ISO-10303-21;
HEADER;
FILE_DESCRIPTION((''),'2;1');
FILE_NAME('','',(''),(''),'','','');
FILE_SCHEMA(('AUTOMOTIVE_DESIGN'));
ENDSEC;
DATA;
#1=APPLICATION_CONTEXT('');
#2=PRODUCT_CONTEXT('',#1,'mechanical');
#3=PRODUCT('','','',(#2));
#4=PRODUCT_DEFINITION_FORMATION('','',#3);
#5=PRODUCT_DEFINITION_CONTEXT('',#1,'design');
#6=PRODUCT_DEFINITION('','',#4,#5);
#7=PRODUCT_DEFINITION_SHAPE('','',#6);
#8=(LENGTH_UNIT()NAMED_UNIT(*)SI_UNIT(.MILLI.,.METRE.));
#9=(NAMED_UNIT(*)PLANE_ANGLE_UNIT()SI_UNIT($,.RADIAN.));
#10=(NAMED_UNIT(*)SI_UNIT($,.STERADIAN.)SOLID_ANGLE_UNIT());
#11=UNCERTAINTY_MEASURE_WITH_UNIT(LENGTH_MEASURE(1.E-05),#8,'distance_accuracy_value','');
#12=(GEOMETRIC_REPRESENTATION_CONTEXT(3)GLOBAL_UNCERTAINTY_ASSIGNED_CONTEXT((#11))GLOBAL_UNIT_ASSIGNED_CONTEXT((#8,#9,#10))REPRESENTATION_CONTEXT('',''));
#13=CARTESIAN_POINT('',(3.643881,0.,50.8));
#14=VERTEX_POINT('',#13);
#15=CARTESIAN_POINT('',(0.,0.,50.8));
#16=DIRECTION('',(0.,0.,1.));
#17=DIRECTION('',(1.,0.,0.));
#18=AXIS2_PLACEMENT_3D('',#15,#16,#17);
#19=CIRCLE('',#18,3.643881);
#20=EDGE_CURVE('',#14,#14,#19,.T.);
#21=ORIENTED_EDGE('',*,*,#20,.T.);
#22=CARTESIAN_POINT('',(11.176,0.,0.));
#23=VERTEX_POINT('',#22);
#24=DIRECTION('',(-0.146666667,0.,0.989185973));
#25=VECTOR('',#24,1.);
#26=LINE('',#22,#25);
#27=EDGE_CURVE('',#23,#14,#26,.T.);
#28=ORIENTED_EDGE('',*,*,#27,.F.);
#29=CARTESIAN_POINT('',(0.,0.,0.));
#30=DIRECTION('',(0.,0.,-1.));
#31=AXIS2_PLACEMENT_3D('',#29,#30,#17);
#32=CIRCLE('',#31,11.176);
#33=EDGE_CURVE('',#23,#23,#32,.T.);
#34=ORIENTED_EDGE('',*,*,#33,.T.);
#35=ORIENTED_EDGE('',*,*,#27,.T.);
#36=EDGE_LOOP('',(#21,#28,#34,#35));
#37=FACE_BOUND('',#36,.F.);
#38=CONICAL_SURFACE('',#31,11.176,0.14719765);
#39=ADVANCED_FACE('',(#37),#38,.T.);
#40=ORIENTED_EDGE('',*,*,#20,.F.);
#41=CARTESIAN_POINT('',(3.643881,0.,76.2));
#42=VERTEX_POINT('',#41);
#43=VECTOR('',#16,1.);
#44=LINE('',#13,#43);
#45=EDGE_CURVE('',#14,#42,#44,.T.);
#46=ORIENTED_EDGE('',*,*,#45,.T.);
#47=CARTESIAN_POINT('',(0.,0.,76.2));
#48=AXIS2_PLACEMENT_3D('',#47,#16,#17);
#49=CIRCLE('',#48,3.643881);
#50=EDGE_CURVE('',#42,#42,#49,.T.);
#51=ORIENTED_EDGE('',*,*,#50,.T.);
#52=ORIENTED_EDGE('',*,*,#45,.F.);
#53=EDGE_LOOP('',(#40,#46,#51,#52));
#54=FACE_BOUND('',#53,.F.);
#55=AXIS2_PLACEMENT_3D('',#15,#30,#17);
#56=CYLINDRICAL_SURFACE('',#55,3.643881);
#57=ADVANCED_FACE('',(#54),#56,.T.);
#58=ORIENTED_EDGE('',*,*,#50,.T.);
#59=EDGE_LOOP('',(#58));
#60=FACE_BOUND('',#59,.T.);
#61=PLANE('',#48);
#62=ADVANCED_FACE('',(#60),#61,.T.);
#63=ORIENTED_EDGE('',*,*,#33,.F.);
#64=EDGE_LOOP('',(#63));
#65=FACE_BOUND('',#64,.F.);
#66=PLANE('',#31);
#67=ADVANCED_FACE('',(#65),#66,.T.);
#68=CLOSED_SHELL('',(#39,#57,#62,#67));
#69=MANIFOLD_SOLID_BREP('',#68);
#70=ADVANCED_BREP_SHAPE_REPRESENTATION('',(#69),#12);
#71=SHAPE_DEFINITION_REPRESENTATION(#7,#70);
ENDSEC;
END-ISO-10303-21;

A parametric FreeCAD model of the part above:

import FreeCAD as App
import Part
import Sketcher
from FreeCAD import Vector
Q = App.Units.Quantity


def add_polygon(sketch, points):
    """Adds a closed chain of lines whose ends are joined by coincident constraints."""
    first, n = sketch.GeometryCount, len(points)
    for a, b in zip(points, points[1:] + points[:1]):
        sketch.addGeometry(Part.LineSegment(App.Vector(*a, 0), App.Vector(*b, 0)), False)
    for i in range(n):
        sketch.addConstraint(Sketcher.Constraint("Coincident", first + i, 2, first + (i + 1) % n, 1))

doc = App.newDocument("Part")
body = doc.addObject("PartDesign::Body", "Body")

# Sketch on XZ plane
sketch1 = body.newObject("Sketcher::SketchObject", "Sketch")
sketch1.AttachmentSupport = (doc.getObject("XZ_Plane"), [""])
sketch1.MapMode = "FlatFace"
add_polygon(sketch1, [(0, 75), (0, 0), (11, 0)])  # lines 0-2
sketch1.addConstraint([
    Sketcher.Constraint("Vertical", 0),
    Sketcher.Constraint("Horizontal", 1),
    Sketcher.Constraint("Coincident", 0, 2, -1, 1),
    Sketcher.Constraint("Distance", 2, Q("3 in")),
    Sketcher.Constraint("DistanceX", 1, 1, 1, 2, Q("0.44 in")),
])
revolution = body.newObject("PartDesign::Revolution", "Revolution")
revolution.Profile = sketch1
revolution.ReferenceAxis = (sketch1, ["V_Axis"])
revolution.Angle = 360

# Sketch on YZ plane
sketch2 = body.newObject("Sketcher::SketchObject", "Sketch001")
sketch2.AttachmentSupport = (doc.getObject("YZ_Plane"), [""])
sketch2.MapMode = "FlatFace"
add_polygon(sketch2, [(-31, 76), (-31, 51), (25, 51), (25, 76)])  # lines 0-3
sketch2.addConstraint([
    Sketcher.Constraint("Vertical", 0),
    Sketcher.Constraint("Horizontal", 1),
    Sketcher.Constraint("Vertical", 2),
    Sketcher.Constraint("Horizontal", 3),
    Sketcher.Constraint("DistanceY", 0, 2, 0, 1, Q("1 in")),
    Sketcher.Constraint("DistanceY", -1, 1, 0, 2, Q("2 in")),
    Sketcher.Constraint("DistanceX", 1, 1, 1, 2, 56.300126),
    Sketcher.Constraint("DistanceX", 0, 2, -1, 1, 31.424319),
])
pocket1 = body.newObject("PartDesign::Pocket", "Pocket")
pocket1.Profile = sketch2
pocket1.Length = Q("0.8 in")
pocket1.Midplane = True

# Sketch on XY plane
sketch3 = body.newObject("Sketcher::SketchObject", "Sketch002")
sketch3.AttachmentSupport = (doc.getObject("XY_Plane"), [""])
sketch3.MapMode = "FlatFace"
sketch3.AttachmentOffset = App.Placement(Vector(0, 0, 2 * 25.4), App.Rotation())
sketch3.addGeometry(Part.Circle(Vector(0, 0, 0), Vector(0, 0, 1), 3.6), False)
sketch3.addConstraint([
    Sketcher.Constraint("Coincident", 0, 3, -1, 1),
    Sketcher.Constraint("Diameter", 0, 7.287762),
])
pad1 = body.newObject("PartDesign::Pad", "Pad")
pad1.Profile = sketch3
pad1.Length = Q("1 in")

doc.recompute()
